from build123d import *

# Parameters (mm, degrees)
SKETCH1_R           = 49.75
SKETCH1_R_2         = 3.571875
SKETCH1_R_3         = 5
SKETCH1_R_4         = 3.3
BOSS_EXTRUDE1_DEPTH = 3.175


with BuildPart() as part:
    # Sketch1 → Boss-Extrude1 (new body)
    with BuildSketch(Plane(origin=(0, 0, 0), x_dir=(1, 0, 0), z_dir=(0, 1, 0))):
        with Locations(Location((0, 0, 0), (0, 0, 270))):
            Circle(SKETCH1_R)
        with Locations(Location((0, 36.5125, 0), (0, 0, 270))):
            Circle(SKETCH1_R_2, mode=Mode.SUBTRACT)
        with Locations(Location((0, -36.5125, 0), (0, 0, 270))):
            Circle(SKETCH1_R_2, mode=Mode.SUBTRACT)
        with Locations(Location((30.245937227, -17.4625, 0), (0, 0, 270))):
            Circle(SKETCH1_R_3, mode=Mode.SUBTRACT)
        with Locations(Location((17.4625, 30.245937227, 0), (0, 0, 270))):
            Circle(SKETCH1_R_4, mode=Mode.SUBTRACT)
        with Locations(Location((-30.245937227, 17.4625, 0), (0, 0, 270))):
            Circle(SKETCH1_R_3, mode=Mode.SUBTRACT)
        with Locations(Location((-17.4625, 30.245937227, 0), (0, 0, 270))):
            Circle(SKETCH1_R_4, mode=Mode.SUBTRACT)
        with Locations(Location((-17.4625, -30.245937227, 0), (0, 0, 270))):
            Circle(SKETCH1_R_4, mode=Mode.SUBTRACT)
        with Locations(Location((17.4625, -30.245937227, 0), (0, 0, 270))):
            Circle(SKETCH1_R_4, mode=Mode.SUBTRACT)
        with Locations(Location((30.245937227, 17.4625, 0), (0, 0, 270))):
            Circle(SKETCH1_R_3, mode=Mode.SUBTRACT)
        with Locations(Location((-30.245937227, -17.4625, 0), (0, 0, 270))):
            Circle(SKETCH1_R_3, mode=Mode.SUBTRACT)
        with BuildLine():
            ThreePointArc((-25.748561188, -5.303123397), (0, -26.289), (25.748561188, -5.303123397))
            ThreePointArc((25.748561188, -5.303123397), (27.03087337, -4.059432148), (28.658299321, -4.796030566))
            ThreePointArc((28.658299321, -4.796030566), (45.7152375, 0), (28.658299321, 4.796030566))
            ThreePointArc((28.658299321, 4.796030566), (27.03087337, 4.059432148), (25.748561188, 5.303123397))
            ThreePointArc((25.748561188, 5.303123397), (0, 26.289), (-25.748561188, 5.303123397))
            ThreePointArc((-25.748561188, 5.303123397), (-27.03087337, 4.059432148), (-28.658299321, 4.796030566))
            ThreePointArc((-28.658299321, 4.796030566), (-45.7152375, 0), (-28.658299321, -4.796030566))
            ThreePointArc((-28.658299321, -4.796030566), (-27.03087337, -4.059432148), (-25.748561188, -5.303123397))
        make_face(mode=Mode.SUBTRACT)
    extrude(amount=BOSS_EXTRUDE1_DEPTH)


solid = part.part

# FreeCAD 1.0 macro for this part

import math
import FreeCAD as App
import Part
import Sketcher
from FreeCAD import Vector
Q = App.Units.Quantity

doc = App.newDocument("Part")
body = doc.addObject("PartDesign::Body", "Body")

# Sketch on XZ plane
sketch1 = doc.addObject("Sketcher::SketchObject", "Sketch")
body.addObject(sketch1)
sketch1.AttachmentSupport = (doc.XZ_Plane, [""])
sketch1.MapMode = "FlatFace"
sketch1.addGeometry(Part.Circle(Vector(0, 0, 0), Vector(0, 0, 1), 49.75), False)
sketch1.addGeometry(Part.Circle(Vector(-30.245937, -17.4625, 0), Vector(0, 0, 1), 5), False)
sketch1.addGeometry(Part.Circle(Vector(-17.4625, -30.245937, 0), Vector(0, 0, 1), 3.3), False)
sketch1.addGeometry(Part.Circle(Vector(0, -36.5125, 0), Vector(0, 0, 1), 3.571875), False)
sketch1.addGeometry(Part.Circle(Vector(-30.245937, 17.4625, 0), Vector(0, 0, 1), 5), False)
sketch1.addGeometry(Part.Circle(Vector(-17.4625, 30.245937, 0), Vector(0, 0, 1), 3.3), False)
sketch1.addGeometry(Part.Circle(Vector(17.4625, -30.245937, 0), Vector(0, 0, 1), 3.3), False)
sketch1.addGeometry(Part.Circle(Vector(30.245937, -17.4625, 0), Vector(0, 0, 1), 5), False)
sketch1.addGeometry(Part.ArcOfCircle(Part.Circle(Vector(0, 0, 0), Vector(0, 0, 1), 26.289), math.radians(11.637795), math.radians(168.362205)), False)
sketch1.addGeometry(Part.ArcOfCircle(Part.Circle(Vector(-27.303426, 5.62336, 0), Vector(0, 0, 1), 1.5875), math.radians(-148.590403), math.radians(-11.637795)), False)
sketch1.addGeometry(Part.ArcOfCircle(Part.Circle(Vector(-36.5125, 0, 0), Vector(0, 0, 1), 9.202737), math.radians(31.409597), math.radians(328.590403)), False)
sketch1.addGeometry(Part.ArcOfCircle(Part.Circle(Vector(-27.303426, -5.62336, 0), Vector(0, 0, 1), 1.5875), math.radians(11.637795), math.radians(148.590403)), False)
sketch1.addGeometry(Part.ArcOfCircle(Part.Circle(Vector(0, 0, 0), Vector(0, 0, 1), 26.289), math.radians(-168.362205), math.radians(-11.637795)), False)
sketch1.addGeometry(Part.ArcOfCircle(Part.Circle(Vector(27.303426, -5.62336, 0), Vector(0, 0, 1), 1.5875), math.radians(31.409597), math.radians(168.362205)), False)
sketch1.addGeometry(Part.ArcOfCircle(Part.Circle(Vector(36.5125, 0, 0), Vector(0, 0, 1), 9.202737), math.radians(-148.590403), math.radians(148.590403)), False)
sketch1.addGeometry(Part.ArcOfCircle(Part.Circle(Vector(27.303426, 5.62336, 0), Vector(0, 0, 1), 1.5875), math.radians(-168.362205), math.radians(-31.409597)), False)
sketch1.addGeometry(Part.Circle(Vector(0, 36.5125, 0), Vector(0, 0, 1), 3.571875), False)
sketch1.addGeometry(Part.Circle(Vector(17.4625, 30.245937, 0), Vector(0, 0, 1), 3.3), False)
sketch1.addGeometry(Part.Circle(Vector(30.245937, 17.4625, 0), Vector(0, 0, 1), 5), False)
sketch1.addConstraint(Sketcher.Constraint("Tangent", 8, 2, 9, 2))
sketch1.addConstraint(Sketcher.Constraint("Tangent", 9, 1, 10, 1))
sketch1.addConstraint(Sketcher.Constraint("Tangent", 10, 2, 11, 2))
sketch1.addConstraint(Sketcher.Constraint("Tangent", 11, 1, 12, 1))
sketch1.addConstraint(Sketcher.Constraint("Tangent", 12, 2, 13, 2))
sketch1.addConstraint(Sketcher.Constraint("Tangent", 13, 1, 14, 1))
sketch1.addConstraint(Sketcher.Constraint("Tangent", 14, 2, 15, 2))
sketch1.addConstraint(Sketcher.Constraint("Tangent", 15, 1, 8, 1))
sketch1.addConstraint(Sketcher.Constraint("Coincident", 0, 3, -1, 1))
sketch1.addConstraint(Sketcher.Constraint("Coincident", 8, 3, -1, 1))
sketch1.addConstraint(Sketcher.Constraint("Coincident", 12, 3, -1, 1))
sketch1.addConstraint(Sketcher.Constraint("Equal", 1, 4))
sketch1.addConstraint(Sketcher.Constraint("Equal", 2, 5))
sketch1.addConstraint(Sketcher.Constraint("Equal", 5, 6))
sketch1.addConstraint(Sketcher.Constraint("Equal", 4, 7))
sketch1.addConstraint(Sketcher.Constraint("Equal", 9, 11))
sketch1.addConstraint(Sketcher.Constraint("Equal", 8, 12))
sketch1.addConstraint(Sketcher.Constraint("Equal", 11, 13))
sketch1.addConstraint(Sketcher.Constraint("Equal", 10, 14))
sketch1.addConstraint(Sketcher.Constraint("Equal", 13, 15))
sketch1.addConstraint(Sketcher.Constraint("Equal", 3, 16))
sketch1.addConstraint(Sketcher.Constraint("Equal", 6, 17))
sketch1.addConstraint(Sketcher.Constraint("Equal", 7, 18))
sketch1.addConstraint(Sketcher.Constraint("Symmetric", 5, 3, 6, 3, -1, 1))
sketch1.addConstraint(Sketcher.Constraint("Symmetric", 4, 3, 7, 3, -1, 1))
sketch1.addConstraint(Sketcher.Constraint("Symmetric", 10, 3, 14, 3, -1, 1))
sketch1.addConstraint(Sketcher.Constraint("Symmetric", 3, 3, 16, 3, -1, 1))
sketch1.addConstraint(Sketcher.Constraint("Symmetric", 2, 3, 17, 3, -1, 1))
sketch1.addConstraint(Sketcher.Constraint("Symmetric", 1, 3, 18, 3, -1, 1))
sketch1.addConstraint(Sketcher.Constraint("Symmetric", 2, 3, 6, 3, -2))
sketch1.addConstraint(Sketcher.Constraint("Symmetric", 1, 3, 7, 3, -2))
sketch1.addConstraint(Sketcher.Constraint("PointOnObject", 3, 3, -2))
sketch1.addConstraint(Sketcher.Constraint("PointOnObject", 10, 3, -1))
sketch1.addConstraint(Sketcher.Constraint("Diameter", 1, Q("10 mm")))
sketch1.addConstraint(Sketcher.Constraint("Diameter", 0, Q("99.5 mm")))
sketch1.addConstraint(Sketcher.Constraint("Diameter", 2, Q("6.6 mm")))
sketch1.addConstraint(Sketcher.Constraint("Radius", 8, Q("26.289 mm")))
sketch1.addConstraint(Sketcher.Constraint("Radius", 9, Q("1.5875 mm")))
sketch1.addConstraint(Sketcher.Constraint("Diameter", 3, Q("7.14375 mm")))
sketch1.addConstraint(Sketcher.Constraint("DistanceY", 3, 3, 1, 3, Q("19.05 mm")))
sketch1.addConstraint(Sketcher.Constraint("DistanceX", 10, 3, 2, 3, Q("19.05 mm")))
sketch1.addConstraint(Sketcher.Constraint("Radius", 10, Q("9.202737 mm")))
sketch1.addConstraint(Sketcher.Constraint("DistanceY", 1, 3, 4, 3, Q("34.925 mm")))
sketch1.addConstraint(Sketcher.Constraint("DistanceX", 2, 3, 6, 3, Q("34.925 mm")))
sketch1.addConstraint(Sketcher.Constraint("DistanceX", 4, 3, 9, 3, Q("2.942511 mm")))
sketch1.addConstraint(Sketcher.Constraint("DistanceY", 2, 3, -1, 1, Q("30.245937 mm")))
pad1 = doc.addObject("PartDesign::Pad", "Pad")
body.addObject(pad1)
pad1.Profile = sketch1
pad1.Length = 3.175
pad1.Reversed = True

doc.recompute()
